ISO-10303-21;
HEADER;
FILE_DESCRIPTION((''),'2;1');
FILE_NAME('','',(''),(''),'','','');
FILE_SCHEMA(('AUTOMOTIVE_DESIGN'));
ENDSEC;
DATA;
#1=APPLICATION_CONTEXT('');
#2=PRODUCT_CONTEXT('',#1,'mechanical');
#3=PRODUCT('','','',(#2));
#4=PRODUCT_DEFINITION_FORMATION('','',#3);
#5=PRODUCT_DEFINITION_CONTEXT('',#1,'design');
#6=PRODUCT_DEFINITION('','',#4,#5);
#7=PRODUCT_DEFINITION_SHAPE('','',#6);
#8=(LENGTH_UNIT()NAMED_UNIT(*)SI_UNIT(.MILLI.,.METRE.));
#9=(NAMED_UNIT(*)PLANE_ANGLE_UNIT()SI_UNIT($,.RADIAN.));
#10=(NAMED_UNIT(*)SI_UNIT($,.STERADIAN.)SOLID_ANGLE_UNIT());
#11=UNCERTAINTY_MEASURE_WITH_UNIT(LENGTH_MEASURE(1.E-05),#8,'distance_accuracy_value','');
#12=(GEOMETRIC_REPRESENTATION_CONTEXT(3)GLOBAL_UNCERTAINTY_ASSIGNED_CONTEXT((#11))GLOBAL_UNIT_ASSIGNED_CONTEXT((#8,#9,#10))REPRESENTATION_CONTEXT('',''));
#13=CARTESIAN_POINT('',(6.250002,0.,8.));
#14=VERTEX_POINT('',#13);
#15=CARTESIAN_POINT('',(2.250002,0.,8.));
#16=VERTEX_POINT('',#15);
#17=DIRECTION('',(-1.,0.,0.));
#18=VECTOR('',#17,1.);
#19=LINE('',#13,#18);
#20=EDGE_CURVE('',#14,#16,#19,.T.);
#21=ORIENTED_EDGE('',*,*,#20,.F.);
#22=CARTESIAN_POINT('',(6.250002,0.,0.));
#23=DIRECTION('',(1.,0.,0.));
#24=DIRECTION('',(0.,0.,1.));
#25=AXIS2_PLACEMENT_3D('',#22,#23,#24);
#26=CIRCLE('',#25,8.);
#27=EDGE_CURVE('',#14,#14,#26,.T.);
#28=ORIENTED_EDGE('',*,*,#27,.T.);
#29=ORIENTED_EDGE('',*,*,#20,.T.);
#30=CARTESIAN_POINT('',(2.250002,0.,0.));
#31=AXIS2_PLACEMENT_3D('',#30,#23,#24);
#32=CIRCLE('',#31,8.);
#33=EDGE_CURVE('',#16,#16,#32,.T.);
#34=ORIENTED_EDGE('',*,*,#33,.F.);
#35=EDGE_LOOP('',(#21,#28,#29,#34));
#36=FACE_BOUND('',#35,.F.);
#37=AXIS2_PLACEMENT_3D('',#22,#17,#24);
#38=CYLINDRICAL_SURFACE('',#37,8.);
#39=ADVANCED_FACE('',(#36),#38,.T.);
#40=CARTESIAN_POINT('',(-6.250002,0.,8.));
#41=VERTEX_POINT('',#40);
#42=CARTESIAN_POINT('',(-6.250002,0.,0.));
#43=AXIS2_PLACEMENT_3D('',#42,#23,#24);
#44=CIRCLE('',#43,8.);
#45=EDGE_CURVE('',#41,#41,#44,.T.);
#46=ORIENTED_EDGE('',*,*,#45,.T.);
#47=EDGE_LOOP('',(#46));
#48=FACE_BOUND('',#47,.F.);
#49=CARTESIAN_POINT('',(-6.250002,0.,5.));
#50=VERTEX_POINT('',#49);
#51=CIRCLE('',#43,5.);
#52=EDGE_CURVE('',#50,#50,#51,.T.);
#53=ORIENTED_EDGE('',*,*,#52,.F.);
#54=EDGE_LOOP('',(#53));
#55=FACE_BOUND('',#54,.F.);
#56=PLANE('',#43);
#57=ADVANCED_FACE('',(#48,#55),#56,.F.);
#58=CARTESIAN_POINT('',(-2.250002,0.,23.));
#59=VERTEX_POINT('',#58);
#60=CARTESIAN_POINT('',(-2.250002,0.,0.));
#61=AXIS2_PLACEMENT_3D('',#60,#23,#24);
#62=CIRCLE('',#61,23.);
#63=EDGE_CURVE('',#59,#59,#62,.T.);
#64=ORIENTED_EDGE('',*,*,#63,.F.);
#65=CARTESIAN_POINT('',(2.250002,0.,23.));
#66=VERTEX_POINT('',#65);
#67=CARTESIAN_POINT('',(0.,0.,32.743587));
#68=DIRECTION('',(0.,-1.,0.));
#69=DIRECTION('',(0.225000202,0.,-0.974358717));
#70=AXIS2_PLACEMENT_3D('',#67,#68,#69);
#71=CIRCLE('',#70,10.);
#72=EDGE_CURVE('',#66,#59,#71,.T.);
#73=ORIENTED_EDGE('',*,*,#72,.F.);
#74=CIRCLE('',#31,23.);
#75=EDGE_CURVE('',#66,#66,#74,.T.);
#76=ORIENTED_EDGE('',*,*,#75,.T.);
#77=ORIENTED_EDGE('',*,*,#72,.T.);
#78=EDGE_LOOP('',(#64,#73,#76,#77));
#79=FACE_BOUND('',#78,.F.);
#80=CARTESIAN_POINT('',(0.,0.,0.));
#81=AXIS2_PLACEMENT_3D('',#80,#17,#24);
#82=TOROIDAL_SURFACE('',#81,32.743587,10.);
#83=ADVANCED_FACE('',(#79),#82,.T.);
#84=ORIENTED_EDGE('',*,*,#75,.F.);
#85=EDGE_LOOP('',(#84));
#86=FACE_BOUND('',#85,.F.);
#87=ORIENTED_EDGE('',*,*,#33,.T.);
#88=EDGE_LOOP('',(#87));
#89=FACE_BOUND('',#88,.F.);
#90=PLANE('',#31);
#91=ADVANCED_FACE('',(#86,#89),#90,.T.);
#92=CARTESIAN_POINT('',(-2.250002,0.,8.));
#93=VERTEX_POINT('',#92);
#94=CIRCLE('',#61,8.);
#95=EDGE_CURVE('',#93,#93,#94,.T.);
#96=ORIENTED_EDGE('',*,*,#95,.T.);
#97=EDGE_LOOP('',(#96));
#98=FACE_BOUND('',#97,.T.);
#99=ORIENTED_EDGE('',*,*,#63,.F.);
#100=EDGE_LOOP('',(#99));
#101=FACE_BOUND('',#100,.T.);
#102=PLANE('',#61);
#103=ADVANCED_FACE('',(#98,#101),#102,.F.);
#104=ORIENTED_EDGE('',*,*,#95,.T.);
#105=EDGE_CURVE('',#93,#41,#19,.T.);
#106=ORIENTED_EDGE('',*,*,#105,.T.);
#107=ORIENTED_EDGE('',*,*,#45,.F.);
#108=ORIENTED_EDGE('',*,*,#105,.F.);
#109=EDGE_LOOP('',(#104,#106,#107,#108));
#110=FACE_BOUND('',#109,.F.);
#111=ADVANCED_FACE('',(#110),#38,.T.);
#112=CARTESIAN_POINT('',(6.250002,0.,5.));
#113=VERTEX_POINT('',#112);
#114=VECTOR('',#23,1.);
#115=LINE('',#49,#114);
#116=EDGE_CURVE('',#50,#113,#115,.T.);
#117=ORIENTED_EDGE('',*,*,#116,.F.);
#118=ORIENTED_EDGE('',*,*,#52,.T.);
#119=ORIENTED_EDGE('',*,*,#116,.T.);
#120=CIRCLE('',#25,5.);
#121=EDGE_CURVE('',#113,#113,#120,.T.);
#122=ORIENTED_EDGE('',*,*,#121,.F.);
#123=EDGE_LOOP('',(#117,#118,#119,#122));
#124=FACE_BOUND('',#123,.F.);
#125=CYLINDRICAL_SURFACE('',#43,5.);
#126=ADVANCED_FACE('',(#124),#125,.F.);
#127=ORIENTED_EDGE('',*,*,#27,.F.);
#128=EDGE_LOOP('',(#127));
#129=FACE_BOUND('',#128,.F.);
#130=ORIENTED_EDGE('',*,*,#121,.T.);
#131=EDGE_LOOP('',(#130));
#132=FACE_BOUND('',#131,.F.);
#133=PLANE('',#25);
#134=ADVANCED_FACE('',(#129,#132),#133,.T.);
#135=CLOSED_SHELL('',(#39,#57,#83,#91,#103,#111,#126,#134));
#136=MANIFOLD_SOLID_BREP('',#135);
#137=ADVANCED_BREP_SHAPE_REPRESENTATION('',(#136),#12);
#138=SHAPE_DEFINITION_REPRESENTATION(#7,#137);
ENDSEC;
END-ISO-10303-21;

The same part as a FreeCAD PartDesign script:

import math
import FreeCAD as App
import Part
import Sketcher
Q = App.Units.Quantity

doc = App.newDocument("Part")
params = doc.addObject("Spreadsheet::Sheet", "Params")
for row, (alias, value) in enumerate([
    ("sketch1_radius", "10 mm"),
    ("sketch1_width", "4 mm"),
    ("sketch1_height", "3 mm"),
    ("sketch1_height2", "15 mm"),
    ("revolution_angle", "360 deg"),
], start=1):
    params.set(f"A{row}", alias)
    params.set(f"B{row}", "=" + value)
    params.setAlias(f"B{row}", alias)

body = doc.addObject("PartDesign::Body", "Body")

sketch1 = doc.addObject("Sketcher::SketchObject", "Sketch")
body.addObject(sketch1)
sketch1.AttachmentSupport = (doc.XZ_Plane, [""])
sketch1.MapMode = "FlatFace"
sketch1.addGeometry([
    Part.LineSegment(App.Vector(6.3, 5, 0), App.Vector(6.3, 8, 0)),
    Part.LineSegment(App.Vector(6.3, 8, 0), App.Vector(2.3, 8, 0)),
    Part.LineSegment(App.Vector(2.3, 8, 0), App.Vector(2.3, 23, 0)),
    Part.ArcOfCircle(Part.Circle(App.Vector(0, 32.7, 0), App.Vector(0, 0, 1), 10), math.radians(-77), math.radians(257)),
    Part.LineSegment(App.Vector(-2.3, 23, 0), App.Vector(-2.3, 8, 0)),
    Part.LineSegment(App.Vector(-2.3, 8, 0), App.Vector(-6.3, 8, 0)),
    Part.LineSegment(App.Vector(-6.3, 8, 0), App.Vector(-6.3, 5, 0)),
    Part.LineSegment(App.Vector(-6.3, 5, 0), App.Vector(6.3, 5, 0)),
], False)
sketch1.addConstraint([
    Sketcher.Constraint("Coincident", 0, 2, 1, 1),
    Sketcher.Constraint("Coincident", 1, 2, 2, 1),
    Sketcher.Constraint("Coincident", 2, 2, 3, 1),
    Sketcher.Constraint("Coincident", 3, 2, 4, 1),
    Sketcher.Constraint("Coincident", 4, 2, 5, 1),
    Sketcher.Constraint("Coincident", 5, 2, 6, 1),
    Sketcher.Constraint("Coincident", 6, 2, 7, 1),
    Sketcher.Constraint("Coincident", 7, 2, 0, 1),
    Sketcher.Constraint("Vertical", 0),
    Sketcher.Constraint("Horizontal", 1),
    Sketcher.Constraint("Vertical", 2),
    Sketcher.Constraint("Vertical", 4),
    Sketcher.Constraint("Horizontal", 5),
    Sketcher.Constraint("Vertical", 6),
    Sketcher.Constraint("Horizontal", 7),
    Sketcher.Constraint("Symmetric", 2, 2, 3, 2, -2),
    Sketcher.Constraint("Symmetric", 0, 2, 5, 2, -2),
    Sketcher.Constraint("Radius", 3, Q("10 mm")),
    Sketcher.Constraint("DistanceX", 1, 2, 1, 1, Q("4 mm")),
    Sketcher.Constraint("DistanceY", 0, 1, 0, 2, Q("3 mm")),
    Sketcher.Constraint("DistanceY", 2, 1, 2, 2, Q("15 mm")),
    Sketcher.Constraint("DistanceY", -1, 1, 0, 2, Q("8 mm")),
    Sketcher.Constraint("DistanceX", -1, 1, 1, 2, Q("2.250002 mm")),
])
sketch1.setExpression("Constraints[17]", "Params.sketch1_radius")
sketch1.setExpression("Constraints[18]", "Params.sketch1_width")
sketch1.setExpression("Constraints[19]", "Params.sketch1_height")
sketch1.setExpression("Constraints[20]", "Params.sketch1_height2")
revolution = doc.addObject("PartDesign::Revolution", "Revolution")
body.addObject(revolution)
revolution.Profile = sketch1
revolution.ReferenceAxis = (sketch1, ["H_Axis"])
revolution.setExpression("Angle", "Params.revolution_angle")

doc.recompute()
